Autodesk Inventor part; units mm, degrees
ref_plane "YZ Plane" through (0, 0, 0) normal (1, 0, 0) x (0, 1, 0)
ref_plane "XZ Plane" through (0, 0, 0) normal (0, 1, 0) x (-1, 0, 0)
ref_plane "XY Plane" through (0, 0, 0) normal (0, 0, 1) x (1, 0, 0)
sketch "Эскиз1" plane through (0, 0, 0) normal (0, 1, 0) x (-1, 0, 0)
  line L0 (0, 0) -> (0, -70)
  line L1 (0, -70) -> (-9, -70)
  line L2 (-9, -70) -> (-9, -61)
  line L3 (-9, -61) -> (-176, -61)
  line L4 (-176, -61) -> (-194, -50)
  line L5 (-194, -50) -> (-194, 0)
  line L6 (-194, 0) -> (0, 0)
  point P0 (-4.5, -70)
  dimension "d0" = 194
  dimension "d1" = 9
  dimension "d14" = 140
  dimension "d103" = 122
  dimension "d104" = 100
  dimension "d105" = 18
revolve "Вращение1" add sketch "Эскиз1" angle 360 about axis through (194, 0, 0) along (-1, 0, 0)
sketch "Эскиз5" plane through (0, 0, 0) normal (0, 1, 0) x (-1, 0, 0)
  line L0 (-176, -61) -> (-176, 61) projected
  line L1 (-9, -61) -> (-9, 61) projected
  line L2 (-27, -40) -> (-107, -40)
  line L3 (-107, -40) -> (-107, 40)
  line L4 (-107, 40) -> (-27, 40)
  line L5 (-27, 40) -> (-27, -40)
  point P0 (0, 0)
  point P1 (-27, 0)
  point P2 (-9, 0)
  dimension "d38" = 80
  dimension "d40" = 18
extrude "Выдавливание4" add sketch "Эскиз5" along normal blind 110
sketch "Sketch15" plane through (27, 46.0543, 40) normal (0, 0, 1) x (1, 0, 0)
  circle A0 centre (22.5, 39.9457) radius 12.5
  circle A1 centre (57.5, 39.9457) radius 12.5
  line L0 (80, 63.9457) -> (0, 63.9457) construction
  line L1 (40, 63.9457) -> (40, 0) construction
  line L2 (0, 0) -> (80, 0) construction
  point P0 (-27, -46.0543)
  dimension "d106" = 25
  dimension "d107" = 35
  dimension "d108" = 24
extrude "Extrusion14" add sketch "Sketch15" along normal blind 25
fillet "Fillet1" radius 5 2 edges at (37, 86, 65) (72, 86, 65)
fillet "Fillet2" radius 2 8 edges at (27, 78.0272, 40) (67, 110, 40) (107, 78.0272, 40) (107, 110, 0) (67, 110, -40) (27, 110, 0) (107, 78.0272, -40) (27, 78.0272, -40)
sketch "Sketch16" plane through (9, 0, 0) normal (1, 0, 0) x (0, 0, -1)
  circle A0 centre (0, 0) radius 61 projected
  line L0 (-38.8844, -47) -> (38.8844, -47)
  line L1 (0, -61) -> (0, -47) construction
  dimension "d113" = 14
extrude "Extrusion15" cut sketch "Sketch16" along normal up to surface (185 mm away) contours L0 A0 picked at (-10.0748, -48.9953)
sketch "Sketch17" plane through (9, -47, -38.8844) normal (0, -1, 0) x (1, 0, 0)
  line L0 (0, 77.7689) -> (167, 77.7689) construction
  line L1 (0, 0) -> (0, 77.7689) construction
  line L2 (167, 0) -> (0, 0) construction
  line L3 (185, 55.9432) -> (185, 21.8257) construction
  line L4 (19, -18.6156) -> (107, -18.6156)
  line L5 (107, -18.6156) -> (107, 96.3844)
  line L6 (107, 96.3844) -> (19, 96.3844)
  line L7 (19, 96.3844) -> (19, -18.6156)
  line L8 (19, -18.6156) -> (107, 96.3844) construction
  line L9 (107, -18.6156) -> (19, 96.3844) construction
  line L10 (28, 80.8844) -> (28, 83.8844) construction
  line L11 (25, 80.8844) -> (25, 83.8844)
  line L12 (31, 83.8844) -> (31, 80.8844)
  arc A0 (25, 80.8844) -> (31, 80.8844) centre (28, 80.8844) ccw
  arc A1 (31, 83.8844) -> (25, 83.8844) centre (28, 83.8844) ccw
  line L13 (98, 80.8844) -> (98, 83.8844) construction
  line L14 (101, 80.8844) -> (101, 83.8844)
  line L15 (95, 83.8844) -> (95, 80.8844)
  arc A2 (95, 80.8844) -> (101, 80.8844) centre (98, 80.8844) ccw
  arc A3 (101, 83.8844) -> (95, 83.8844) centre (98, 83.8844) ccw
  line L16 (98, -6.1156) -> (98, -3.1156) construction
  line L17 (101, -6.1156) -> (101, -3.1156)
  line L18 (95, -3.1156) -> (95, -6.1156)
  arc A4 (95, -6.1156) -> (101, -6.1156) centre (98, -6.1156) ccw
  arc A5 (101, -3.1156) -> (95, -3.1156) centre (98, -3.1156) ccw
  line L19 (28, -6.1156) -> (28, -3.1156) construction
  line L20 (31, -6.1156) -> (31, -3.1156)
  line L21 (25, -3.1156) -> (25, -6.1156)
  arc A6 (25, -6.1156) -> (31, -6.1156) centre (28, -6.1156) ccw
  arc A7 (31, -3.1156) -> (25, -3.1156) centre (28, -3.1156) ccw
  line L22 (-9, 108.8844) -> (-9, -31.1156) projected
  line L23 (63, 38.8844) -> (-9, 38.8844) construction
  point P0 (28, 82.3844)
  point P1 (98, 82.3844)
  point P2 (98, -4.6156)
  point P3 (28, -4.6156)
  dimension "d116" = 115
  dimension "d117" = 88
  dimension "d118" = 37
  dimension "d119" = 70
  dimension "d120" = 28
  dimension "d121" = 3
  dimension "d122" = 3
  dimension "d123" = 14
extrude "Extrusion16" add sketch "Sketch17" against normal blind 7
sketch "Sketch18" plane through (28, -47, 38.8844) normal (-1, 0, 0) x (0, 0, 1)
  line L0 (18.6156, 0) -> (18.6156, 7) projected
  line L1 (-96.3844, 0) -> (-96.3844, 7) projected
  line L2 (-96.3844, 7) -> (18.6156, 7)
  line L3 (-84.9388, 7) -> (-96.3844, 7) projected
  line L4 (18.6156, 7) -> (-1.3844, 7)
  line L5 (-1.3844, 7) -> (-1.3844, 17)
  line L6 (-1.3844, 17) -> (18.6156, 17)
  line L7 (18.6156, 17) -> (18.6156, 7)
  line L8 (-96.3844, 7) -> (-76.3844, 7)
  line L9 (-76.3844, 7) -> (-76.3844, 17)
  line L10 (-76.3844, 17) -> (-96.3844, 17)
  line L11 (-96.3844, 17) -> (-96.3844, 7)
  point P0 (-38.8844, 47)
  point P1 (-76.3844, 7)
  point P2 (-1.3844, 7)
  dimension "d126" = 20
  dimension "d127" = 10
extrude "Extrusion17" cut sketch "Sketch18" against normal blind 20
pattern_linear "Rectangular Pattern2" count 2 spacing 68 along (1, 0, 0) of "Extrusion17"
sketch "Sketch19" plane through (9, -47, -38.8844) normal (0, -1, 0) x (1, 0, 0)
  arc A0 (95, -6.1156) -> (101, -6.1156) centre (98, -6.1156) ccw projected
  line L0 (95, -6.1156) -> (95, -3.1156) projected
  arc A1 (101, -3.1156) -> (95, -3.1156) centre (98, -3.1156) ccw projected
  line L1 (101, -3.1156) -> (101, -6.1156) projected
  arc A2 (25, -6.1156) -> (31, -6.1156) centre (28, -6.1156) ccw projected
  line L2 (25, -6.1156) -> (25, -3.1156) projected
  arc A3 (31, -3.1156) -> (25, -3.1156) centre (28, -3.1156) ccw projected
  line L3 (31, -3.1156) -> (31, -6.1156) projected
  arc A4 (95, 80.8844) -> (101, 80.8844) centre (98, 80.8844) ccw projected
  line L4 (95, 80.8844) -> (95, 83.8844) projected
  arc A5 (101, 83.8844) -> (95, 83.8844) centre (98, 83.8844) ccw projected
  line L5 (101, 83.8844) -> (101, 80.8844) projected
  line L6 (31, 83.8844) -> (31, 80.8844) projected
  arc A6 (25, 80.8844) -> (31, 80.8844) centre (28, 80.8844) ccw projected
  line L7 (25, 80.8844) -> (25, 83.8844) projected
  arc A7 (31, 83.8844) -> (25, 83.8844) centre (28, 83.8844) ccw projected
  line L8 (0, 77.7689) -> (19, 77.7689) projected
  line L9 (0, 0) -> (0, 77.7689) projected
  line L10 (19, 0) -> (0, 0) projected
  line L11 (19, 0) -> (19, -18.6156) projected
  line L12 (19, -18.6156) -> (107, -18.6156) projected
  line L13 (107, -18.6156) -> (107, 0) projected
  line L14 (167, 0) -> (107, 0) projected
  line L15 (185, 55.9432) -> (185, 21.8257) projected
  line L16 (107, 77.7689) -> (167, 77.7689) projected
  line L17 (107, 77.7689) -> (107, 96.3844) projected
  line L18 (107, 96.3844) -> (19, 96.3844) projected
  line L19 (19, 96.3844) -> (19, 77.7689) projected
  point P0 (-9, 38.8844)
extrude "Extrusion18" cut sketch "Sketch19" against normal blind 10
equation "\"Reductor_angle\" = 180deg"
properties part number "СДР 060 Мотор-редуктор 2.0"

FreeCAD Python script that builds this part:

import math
import FreeCAD as App
import Part
import Sketcher
Q = App.Units.Quantity


def edges_at(feature, points):
    """Names of the edges that pass closest to the given points."""
    edges = feature.Shape.Edges
    near = lambda p: min(range(len(edges)), key=lambda i: edges[i].distToShape(Part.Vertex(*p))[0])
    return sorted({f"Edge{near(p) + 1}" for p in points})


def add_polygon(sketch, points):
    """Adds a closed chain of lines whose ends are joined by coincident constraints."""
    first, n = sketch.GeometryCount, len(points)
    for a, b in zip(points, points[1:] + points[:1]):
        sketch.addGeometry(Part.LineSegment(App.Vector(*a, 0), App.Vector(*b, 0)), False)
    for i in range(n):
        sketch.addConstraint(Sketcher.Constraint("Coincident", first + i, 2, first + (i + 1) % n, 1))

doc = App.newDocument("Part")
body = doc.addObject("PartDesign::Body", "Body")

# Sketch on XZ plane
sketch1 = body.newObject("Sketcher::SketchObject", "Sketch")
sketch1.AttachmentSupport = (doc.getObject("XZ_Plane"), [""])
sketch1.MapMode = "FlatFace"
add_polygon(sketch1, [(0, -70), (0, 0), (194, 0), (194, -50), (176, -61), (9, -61), (9, -70)])  # lines 0-6
sketch1.addConstraint([
    Sketcher.Constraint("Vertical", 0),
    Sketcher.Constraint("Horizontal", 1),
    Sketcher.Constraint("Vertical", 2),
    Sketcher.Constraint("Horizontal", 4),
    Sketcher.Constraint("Vertical", 5),
    Sketcher.Constraint("Horizontal", 6),
    Sketcher.Constraint("Coincident", 0, 2, -1, 1),
    Sketcher.Constraint("Equal", 6, 5),
    Sketcher.Constraint("DistanceX", 1, 1, 1, 2, Q("194 mm")),
    Sketcher.Constraint("DistanceX", 6, 2, 6, 1, Q("9 mm")),
    Sketcher.Constraint("DistanceX", 3, 2, 2, 2, Q("18 mm")),
    Sketcher.Constraint("DistanceY", 0, 1, 0, 2, Q("70 mm")),
    Sketcher.Constraint("DistanceY", 2, 2, 2, 1, Q("50 mm")),
])
revolution = body.newObject("PartDesign::Revolution", "Revolution")
revolution.Profile = sketch1
revolution.ReferenceAxis = (sketch1, ["H_Axis"])
revolution.Angle = 360

# Sketch on XZ plane
sketch2 = body.newObject("Sketcher::SketchObject", "Sketch001")
sketch2.AttachmentSupport = (doc.getObject("XZ_Plane"), [""])
sketch2.MapMode = "FlatFace"
add_polygon(sketch2, [(107, -40), (27, -40), (27, 40), (107, 40)])  # lines 0-3
sketch2.addConstraint([
    Sketcher.Constraint("Horizontal", 0),
    Sketcher.Constraint("Vertical", 1),
    Sketcher.Constraint("Horizontal", 2),
    Sketcher.Constraint("Vertical", 3),
    Sketcher.Constraint("Equal", 2, 1),
    Sketcher.Constraint("DistanceX", 0, 2, 0, 1, Q("80 mm")),
    Sketcher.Constraint("DistanceX", -1, 1, 0, 2, Q("27 mm")),
    Sketcher.Constraint("DistanceY", 0, 2, -1, 1, Q("40 mm")),
])
pad1 = body.newObject("PartDesign::Pad", "Pad")
pad1.Profile = sketch2
pad1.Length = 110
pad1.Reversed = True

# Sketch on XY plane
sketch3 = body.newObject("Sketcher::SketchObject", "Sketch002")
sketch3.AttachmentSupport = (doc.getObject("XY_Plane"), [""])
sketch3.MapMode = "FlatFace"
sketch3.AttachmentOffset = App.Placement(App.Vector(0, 0, 40), App.Rotation())
sketch3.addGeometry([
    Part.Circle(App.Vector(49.5, 86, 0), App.Vector(0, 0, 1), 12.5),
    Part.Circle(App.Vector(84.5, 86, 0), App.Vector(0, 0, 1), 12.5),
], False)
sketch3.addConstraint([
    Sketcher.Constraint("Equal", 0, 1),
    Sketcher.Constraint("Horizontal", 0, 3, 1, 3),
    Sketcher.Constraint("Diameter", 0, Q("25 mm")),
    Sketcher.Constraint("DistanceX", 0, 3, 1, 3, Q("35 mm")),
    Sketcher.Constraint("DistanceY", -1, 1, 0, 3, Q("86 mm")),
    Sketcher.Constraint("DistanceX", -1, 1, 0, 3, Q("49.5 mm")),
])
pad2 = body.newObject("PartDesign::Pad", "Pad001")
pad2.Profile = sketch3
pad2.Length = 25
doc.recompute()

fillet = body.newObject("PartDesign::Fillet", "Fillet")
fillet.Base = (pad2, edges_at(pad2, [(37, 86, 65), (72, 86, 65)]))
fillet.Radius = 5
doc.recompute()

fillet2 = body.newObject("PartDesign::Fillet", "Fillet001")
fillet2.Base = (fillet, edges_at(fillet, [
    (27, 78.027, 40),
    (67, 110, 40),
    (107, 78.027, 40),
    (107, 110, 0),
    (67, 110, -40),
    (27, 110, 0),
    (107, 78.027, -40),
    (27, 78.027, -40),
]))
fillet2.Radius = 2

# Sketch on YZ plane
sketch4 = body.newObject("Sketcher::SketchObject", "Sketch003")
sketch4.AttachmentSupport = (doc.getObject("YZ_Plane"), [""])
sketch4.MapMode = "FlatFace"
sketch4.AttachmentOffset = App.Placement(App.Vector(0, 0, 9), App.Rotation())
sketch4.addGeometry([
    Part.LineSegment(App.Vector(-47, -38.8844, 0), App.Vector(-47, 38.8844, 0)),
    Part.ArcOfCircle(Part.Circle(App.Vector(0, 0, 0), App.Vector(0, 0, 1), 61), math.radians(140.398105), math.radians(219.601895)),
], False)
sketch4.addConstraint([
    Sketcher.Constraint("Coincident", 0, 1, 1, 2),
    Sketcher.Constraint("Coincident", 1, 1, 0, 2),
    Sketcher.Constraint("Vertical", 0),
    Sketcher.Constraint("Coincident", 1, 3, -1, 1),
    Sketcher.Constraint("Radius", 1, Q("61 mm")),
    Sketcher.Constraint("DistanceX", 0, 1, -1, 1, Q("47 mm")),
])
pocket1 = body.newObject("PartDesign::Pocket", "Pocket")
pocket1.Profile = sketch4
pocket1.Length = 185
pocket1.Reversed = True

# Sketch on XZ plane
sketch5 = body.newObject("Sketcher::SketchObject", "Sketch004")
sketch5.AttachmentSupport = (doc.getObject("XZ_Plane"), [""])
sketch5.MapMode = "FlatFace"
sketch5.AttachmentOffset = App.Placement(App.Vector(0, 0, 47), App.Rotation())
add_polygon(sketch5, [(28, 57.5), (28, -57.5), (116, -57.5), (116, 57.5)])  # lines 0-3
sketch5.addGeometry(Part.LineSegment(App.Vector(40, -42, 0), App.Vector(40, -45, 0)), False)  # 4
sketch5.addGeometry(Part.ArcOfCircle(Part.Circle(App.Vector(37, -45, 0), App.Vector(0, 0, 1), 3), math.radians(180), math.radians(360)), False)  # 5
sketch5.addGeometry(Part.LineSegment(App.Vector(34, -45, 0), App.Vector(34, -42, 0)), False)  # 6
sketch5.addGeometry(Part.ArcOfCircle(Part.Circle(App.Vector(37, -42, 0), App.Vector(0, 0, 1), 3), math.radians(0), math.radians(180)), False)  # 7
sketch5.addGeometry(Part.LineSegment(App.Vector(110, -42, 0), App.Vector(110, -45, 0)), False)  # 8
sketch5.addGeometry(Part.ArcOfCircle(Part.Circle(App.Vector(107, -45, 0), App.Vector(0, 0, 1), 3), math.radians(180), math.radians(360)), False)  # 9
sketch5.addGeometry(Part.LineSegment(App.Vector(104, -45, 0), App.Vector(104, -42, 0)), False)  # 10
sketch5.addGeometry(Part.ArcOfCircle(Part.Circle(App.Vector(107, -42, 0), App.Vector(0, 0, 1), 3), math.radians(0), math.radians(180)), False)  # 11
sketch5.addGeometry(Part.ArcOfCircle(Part.Circle(App.Vector(37, 42, 0), App.Vector(0, 0, 1), 3), math.radians(180), math.radians(360)), False)  # 12
sketch5.addGeometry(Part.LineSegment(App.Vector(34, 42, 0), App.Vector(34, 45, 0)), False)  # 13
sketch5.addGeometry(Part.ArcOfCircle(Part.Circle(App.Vector(37, 45, 0), App.Vector(0, 0, 1), 3), math.radians(0), math.radians(180)), False)  # 14
sketch5.addGeometry(Part.LineSegment(App.Vector(40, 45, 0), App.Vector(40, 42, 0)), False)  # 15
sketch5.addGeometry(Part.LineSegment(App.Vector(110, 45, 0), App.Vector(110, 42, 0)), False)  # 16
sketch5.addGeometry(Part.ArcOfCircle(Part.Circle(App.Vector(107, 42, 0), App.Vector(0, 0, 1), 3), math.radians(180), math.radians(360)), False)  # 17
sketch5.addGeometry(Part.LineSegment(App.Vector(104, 42, 0), App.Vector(104, 45, 0)), False)  # 18
sketch5.addGeometry(Part.ArcOfCircle(Part.Circle(App.Vector(107, 45, 0), App.Vector(0, 0, 1), 3), math.radians(0), math.radians(180)), False)  # 19
sketch5.addConstraint([
    Sketcher.Constraint("Tangent", 4, 2, 5, 2),
    Sketcher.Constraint("Tangent", 5, 1, 6, 1),
    Sketcher.Constraint("Tangent", 6, 2, 7, 2),
    Sketcher.Constraint("Tangent", 7, 1, 4, 1),
    Sketcher.Constraint("Tangent", 8, 2, 9, 2),
    Sketcher.Constraint("Tangent", 9, 1, 10, 1),
    Sketcher.Constraint("Tangent", 10, 2, 11, 2),
    Sketcher.Constraint("Tangent", 11, 1, 8, 1),
    Sketcher.Constraint("Tangent", 12, 1, 13, 1),
    Sketcher.Constraint("Tangent", 13, 2, 14, 2),
    Sketcher.Constraint("Tangent", 14, 1, 15, 1),
    Sketcher.Constraint("Tangent", 15, 2, 12, 2),
    Sketcher.Constraint("Tangent", 16, 2, 17, 2),
    Sketcher.Constraint("Tangent", 17, 1, 18, 1),
    Sketcher.Constraint("Tangent", 18, 2, 19, 2),
    Sketcher.Constraint("Tangent", 19, 1, 16, 1),
    Sketcher.Constraint("Vertical", 0),
    Sketcher.Constraint("Horizontal", 1),
    Sketcher.Constraint("Vertical", 2),
    Sketcher.Constraint("Horizontal", 3),
    Sketcher.Constraint("Vertical", 4),
    Sketcher.Constraint("Vertical", 6),
    Sketcher.Constraint("Vertical", 8),
    Sketcher.Constraint("Vertical", 10),
    Sketcher.Constraint("Vertical", 13),
    Sketcher.Constraint("Vertical", 15),
    Sketcher.Constraint("Vertical", 16),
    Sketcher.Constraint("Vertical", 18),
    Sketcher.Constraint("Equal", 7, 9),
    Sketcher.Constraint("Equal", 11, 12),
    Sketcher.Constraint("Equal", 14, 17),
    Sketcher.Constraint("Symmetric", 7, 3, 12, 3, -1),
    Sketcher.Constraint("Symmetric", 11, 3, 17, 3, -1),
    Sketcher.Constraint("Horizontal", 5, 3, 9, 3),
    Sketcher.Constraint("Horizontal", 7, 3, 11, 3),
    Sketcher.Constraint("Horizontal", 14, 3, 19, 3),
    Sketcher.Constraint("Equal", 10, 13),
    Sketcher.Constraint("Radius", 5, Q("3 mm")),
    Sketcher.Constraint("DistanceX", 1, 1, 1, 2, Q("88 mm")),
    Sketcher.Constraint("DistanceY", 0, 2, 0, 1, Q("115 mm")),
    Sketcher.Constraint("DistanceY", 4, 2, 4, 1, Q("3 mm")),
    Sketcher.Constraint("DistanceX", -1, 1, 5, 3, Q("37 mm")),
    Sketcher.Constraint("DistanceX", -1, 1, 0, 2, Q("28 mm")),
    Sketcher.Constraint("DistanceX", 5, 3, 9, 3, Q("70 mm")),
    Sketcher.Constraint("DistanceY", 5, 3, -1, 1, Q("45 mm")),
    Sketcher.Constraint("DistanceY", 0, 2, -1, 1, Q("57.5 mm")),
])
pad3 = body.newObject("PartDesign::Pad", "Pad002")
pad3.Profile = sketch5
pad3.Length = 7
pad3.Reversed = True

# Sketch on YZ plane
sketch6 = body.newObject("Sketcher::SketchObject", "Sketch005")
sketch6.AttachmentSupport = (doc.getObject("YZ_Plane"), [""])
sketch6.MapMode = "FlatFace"
sketch6.AttachmentOffset = App.Placement(App.Vector(0, 0, 28), App.Rotation())
add_polygon(sketch6, [(-30, -57.5), (-40, -57.5), (-40, -37.5), (-30, -37.5)])  # lines 0-3
add_polygon(sketch6, [(-30, 37.5), (-40, 37.5), (-40, 57.5), (-30, 57.5)])  # lines 4-7
sketch6.addConstraint([
    Sketcher.Constraint("Horizontal", 0),
    Sketcher.Constraint("Vertical", 1),
    Sketcher.Constraint("Horizontal", 2),
    Sketcher.Constraint("Vertical", 3),
    Sketcher.Constraint("Horizontal", 4),
    Sketcher.Constraint("Vertical", 5),
    Sketcher.Constraint("Horizontal", 6),
    Sketcher.Constraint("Vertical", 7),
    Sketcher.Constraint("Symmetric", 1, 2, 4, 2, -1),
    Sketcher.Constraint("Symmetric", 3, 2, 6, 2, -1),
    Sketcher.Constraint("DistanceX", 0, 2, 0, 1, Q("10 mm")),
    Sketcher.Constraint("DistanceY", 1, 1, 1, 2, Q("20 mm")),
    Sketcher.Constraint("DistanceX", 0, 2, -1, 1, Q("40 mm")),
    Sketcher.Constraint("DistanceY", 1, 2, 4, 2, Q("75 mm")),
])
pocket2 = body.newObject("PartDesign::Pocket", "Pocket001")
pocket2.Profile = sketch6
pocket2.Length = 20
pocket2.Reversed = True
doc.recompute()

linearpattern = body.newObject("PartDesign::LinearPattern", "LinearPattern")
linearpattern.Originals = [pocket2]
linearpattern.Direction = (doc.getObject("X_Axis"), [""])
linearpattern.Mode = "offset"
linearpattern.Offset = 68
linearpattern.Occurrences = 2
body.Tip = linearpattern

# Sketch on XZ plane
sketch7 = body.newObject("Sketcher::SketchObject", "Sketch006")
sketch7.AttachmentSupport = (doc.getObject("XZ_Plane"), [""])
sketch7.MapMode = "FlatFace"
sketch7.AttachmentOffset = App.Placement(App.Vector(0, 0, 47), App.Rotation())
sketch7.addGeometry([
    Part.LineSegment(App.Vector(104, -42, 0), App.Vector(104, -45, 0)),  # 0
    Part.ArcOfCircle(Part.Circle(App.Vector(107, -45, 0), App.Vector(0, 0, 1), 3), math.radians(180), math.radians(360)),  # 1
    Part.LineSegment(App.Vector(110, -45, 0), App.Vector(110, -42, 0)),  # 2
    Part.ArcOfCircle(Part.Circle(App.Vector(107, -42, 0), App.Vector(0, 0, 1), 3), math.radians(0), math.radians(180)),  # 3
    Part.LineSegment(App.Vector(34, -42, 0), App.Vector(34, -45, 0)),  # 4
    Part.ArcOfCircle(Part.Circle(App.Vector(37, -45, 0), App.Vector(0, 0, 1), 3), math.radians(180), math.radians(360)),  # 5
    Part.LineSegment(App.Vector(40, -45, 0), App.Vector(40, -42, 0)),  # 6
    Part.ArcOfCircle(Part.Circle(App.Vector(37, -42, 0), App.Vector(0, 0, 1), 3), math.radians(0), math.radians(180)),  # 7
    Part.LineSegment(App.Vector(104, 45, 0), App.Vector(104, 42, 0)),  # 8
    Part.ArcOfCircle(Part.Circle(App.Vector(107, 42, 0), App.Vector(0, 0, 1), 3), math.radians(180), math.radians(360)),  # 9
    Part.LineSegment(App.Vector(110, 42, 0), App.Vector(110, 45, 0)),  # 10
    Part.ArcOfCircle(Part.Circle(App.Vector(107, 45, 0), App.Vector(0, 0, 1), 3), math.radians(0), math.radians(180)),  # 11
    Part.LineSegment(App.Vector(40, 42, 0), App.Vector(40, 45, 0)),  # 12
    Part.ArcOfCircle(Part.Circle(App.Vector(37, 45, 0), App.Vector(0, 0, 1), 3), math.radians(0), math.radians(180)),  # 13
    Part.LineSegment(App.Vector(34, 45, 0), App.Vector(34, 42, 0)),  # 14
    Part.ArcOfCircle(Part.Circle(App.Vector(37, 42, 0), App.Vector(0, 0, 1), 3), math.radians(180), math.radians(360)),  # 15
], False)
sketch7.addConstraint([
    Sketcher.Constraint("Tangent", 0, 2, 1, 1),
    Sketcher.Constraint("Tangent", 1, 2, 2, 1),
    Sketcher.Constraint("Tangent", 2, 2, 3, 1),
    Sketcher.Constraint("Tangent", 3, 2, 0, 1),
    Sketcher.Constraint("Tangent", 4, 2, 5, 1),
    Sketcher.Constraint("Tangent", 5, 2, 6, 1),
    Sketcher.Constraint("Tangent", 6, 2, 7, 1),
    Sketcher.Constraint("Tangent", 7, 2, 4, 1),
    Sketcher.Constraint("Tangent", 8, 2, 9, 1),
    Sketcher.Constraint("Tangent", 9, 2, 10, 1),
    Sketcher.Constraint("Tangent", 10, 2, 11, 1),
    Sketcher.Constraint("Tangent", 11, 2, 8, 1),
    Sketcher.Constraint("Tangent", 12, 2, 13, 1),
    Sketcher.Constraint("Tangent", 13, 2, 14, 1),
    Sketcher.Constraint("Tangent", 14, 2, 15, 1),
    Sketcher.Constraint("Tangent", 15, 2, 12, 1),
    Sketcher.Constraint("Vertical", 0),
    Sketcher.Constraint("Vertical", 2),
    Sketcher.Constraint("Vertical", 4),
    Sketcher.Constraint("Vertical", 6),
    Sketcher.Constraint("Vertical", 8),
    Sketcher.Constraint("Vertical", 10),
    Sketcher.Constraint("Vertical", 12),
    Sketcher.Constraint("Vertical", 14),
    Sketcher.Constraint("Equal", 3, 5),
    Sketcher.Constraint("Equal", 7, 9),
    Sketcher.Constraint("Equal", 11, 13),
    Sketcher.Constraint("Symmetric", 3, 3, 9, 3, -1),
    Sketcher.Constraint("Symmetric", 5, 3, 13, 3, -1),
    Sketcher.Constraint("Horizontal", 1, 3, 5, 3),
    Sketcher.Constraint("Horizontal", 3, 3, 7, 3),
    Sketcher.Constraint("Horizontal", 11, 3, 13, 3),
    Sketcher.Constraint("Horizontal", 9, 3, 15, 3),
    Sketcher.Constraint("Radius", 1, Q("3 mm")),
    Sketcher.Constraint("DistanceY", 0, 2, 0, 1, Q("3 mm")),
    Sketcher.Constraint("DistanceX", -1, 1, 1, 3, Q("107 mm")),
    Sketcher.Constraint("DistanceY", 1, 3, -1, 1, Q("45 mm")),
    Sketcher.Constraint("DistanceX", -1, 1, 5, 3, Q("37 mm")),
])
pocket3 = body.newObject("PartDesign::Pocket", "Pocket002")
pocket3.Profile = sketch7
pocket3.Length = 10

doc.recompute()
